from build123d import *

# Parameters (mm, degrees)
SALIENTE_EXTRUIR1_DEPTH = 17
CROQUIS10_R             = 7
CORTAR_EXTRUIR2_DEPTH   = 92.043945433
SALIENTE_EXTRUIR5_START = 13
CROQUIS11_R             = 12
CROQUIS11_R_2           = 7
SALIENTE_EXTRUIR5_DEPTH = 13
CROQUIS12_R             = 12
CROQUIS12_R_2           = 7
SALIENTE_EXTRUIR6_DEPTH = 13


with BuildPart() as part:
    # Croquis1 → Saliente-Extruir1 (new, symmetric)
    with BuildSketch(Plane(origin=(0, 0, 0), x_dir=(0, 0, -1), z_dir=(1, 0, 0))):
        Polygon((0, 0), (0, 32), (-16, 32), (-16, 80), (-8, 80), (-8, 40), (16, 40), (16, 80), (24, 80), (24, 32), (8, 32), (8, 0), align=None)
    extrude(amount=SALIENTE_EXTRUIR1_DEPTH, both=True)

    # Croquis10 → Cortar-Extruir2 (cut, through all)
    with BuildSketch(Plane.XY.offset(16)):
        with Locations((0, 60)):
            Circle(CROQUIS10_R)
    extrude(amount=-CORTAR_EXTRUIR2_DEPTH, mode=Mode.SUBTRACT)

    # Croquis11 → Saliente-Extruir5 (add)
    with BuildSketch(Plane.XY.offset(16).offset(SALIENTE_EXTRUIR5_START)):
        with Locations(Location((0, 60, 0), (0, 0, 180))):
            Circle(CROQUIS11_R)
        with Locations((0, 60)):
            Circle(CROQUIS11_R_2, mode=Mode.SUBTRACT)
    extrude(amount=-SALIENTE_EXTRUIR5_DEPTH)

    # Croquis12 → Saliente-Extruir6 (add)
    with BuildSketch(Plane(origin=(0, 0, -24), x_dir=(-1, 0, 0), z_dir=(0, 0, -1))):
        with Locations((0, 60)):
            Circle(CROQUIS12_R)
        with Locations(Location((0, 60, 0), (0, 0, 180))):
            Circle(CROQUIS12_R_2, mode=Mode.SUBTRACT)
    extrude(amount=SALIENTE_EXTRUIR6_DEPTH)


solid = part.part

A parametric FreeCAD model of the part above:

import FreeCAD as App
import Part
import Sketcher

V = App.Vector
Q = App.Units.Quantity

doc = App.newDocument("Part")
body = doc.addObject("PartDesign::Body", "Body")

sketch1 = doc.addObject("Sketcher::SketchObject", "Sketch")
body.addObject(sketch1)
sketch1.AttachmentSupport = (doc.YZ_Plane, [""])
sketch1.MapMode = "FlatFace"
sketch1.addGeometry([
    Part.LineSegment(V(32, 0, 0), V(0, 0, 0)),
    Part.LineSegment(V(0, 0, 0), V(0, -8, 0)),
    Part.LineSegment(V(0, -8, 0), V(32, -8, 0)),
    Part.LineSegment(V(32, -8, 0), V(32, -24, 0)),
    Part.LineSegment(V(32, -24, 0), V(80, -24, 0)),
    Part.LineSegment(V(80, -24, 0), V(80, -16, 0)),
    Part.LineSegment(V(80, -16, 0), V(40, -16, 0)),
    Part.LineSegment(V(40, -16, 0), V(40, 8, 0)),
    Part.LineSegment(V(40, 8, 0), V(80, 8, 0)),
    Part.LineSegment(V(80, 8, 0), V(80, 16, 0)),
    Part.LineSegment(V(80, 16, 0), V(32, 16, 0)),
    Part.LineSegment(V(32, 16, 0), V(32, 0, 0)),
], False)
sketch1.addConstraint([
    Sketcher.Constraint("Coincident", 0, 2, 1, 1),
    Sketcher.Constraint("Coincident", 1, 2, 2, 1),
    Sketcher.Constraint("Coincident", 2, 2, 3, 1),
    Sketcher.Constraint("Coincident", 3, 2, 4, 1),
    Sketcher.Constraint("Coincident", 4, 2, 5, 1),
    Sketcher.Constraint("Coincident", 5, 2, 6, 1),
    Sketcher.Constraint("Coincident", 6, 2, 7, 1),
    Sketcher.Constraint("Coincident", 7, 2, 8, 1),
    Sketcher.Constraint("Coincident", 8, 2, 9, 1),
    Sketcher.Constraint("Coincident", 9, 2, 10, 1),
    Sketcher.Constraint("Coincident", 10, 2, 11, 1),
    Sketcher.Constraint("Coincident", 11, 2, 0, 1),
    Sketcher.Constraint("Horizontal", 0),
    Sketcher.Constraint("Vertical", 1),
    Sketcher.Constraint("Horizontal", 2),
    Sketcher.Constraint("Vertical", 3),
    Sketcher.Constraint("Horizontal", 4),
    Sketcher.Constraint("Vertical", 5),
    Sketcher.Constraint("Horizontal", 6),
    Sketcher.Constraint("Vertical", 7),
    Sketcher.Constraint("Horizontal", 8),
    Sketcher.Constraint("Vertical", 9),
    Sketcher.Constraint("Horizontal", 10),
    Sketcher.Constraint("Vertical", 11),
    Sketcher.Constraint("Coincident", 0, 2, -1, 1),
    Sketcher.Constraint("Symmetric", 5, 2, 9, 2, -1),
    Sketcher.Constraint("Vertical", 3, 2, 10, 2),
    Sketcher.Constraint("Equal", 1, 5),
    Sketcher.Constraint("Equal", 5, 9),
    Sketcher.Constraint("DistanceX", 0, 2, 0, 1, Q("32 mm")),
    Sketcher.Constraint("DistanceX", 4, 1, 4, 2, Q("48 mm")),
    Sketcher.Constraint("DistanceX", 6, 2, 6, 1, Q("40 mm")),
    Sketcher.Constraint("DistanceY", 1, 2, 1, 1, Q("8 mm")),
    Sketcher.Constraint("DistanceY", 3, 2, 3, 1, Q("16 mm")),
])
pad1 = doc.addObject("PartDesign::Pad", "Pad")
body.addObject(pad1)
pad1.Profile = sketch1
pad1.Length = 34
pad1.Midplane = True

sketch2 = doc.addObject("Sketcher::SketchObject", "Sketch001")
body.addObject(sketch2)
sketch2.AttachmentSupport = (doc.XY_Plane, [""])
sketch2.MapMode = "FlatFace"
sketch2.AttachmentOffset = App.Placement(V(0, 0, 16), App.Rotation())
sketch2.addGeometry(Part.Circle(V(0, 60, 0), V(0, 0, 1), 7), False)
sketch2.addConstraint([
    Sketcher.Constraint("PointOnObject", 0, 3, -2),
    Sketcher.Constraint("Diameter", 0, Q("14 mm")),
    Sketcher.Constraint("DistanceY", -1, 1, 0, 3, Q("60 mm")),
])
pocket1 = doc.addObject("PartDesign::Pocket", "Pocket")
body.addObject(pocket1)
pocket1.Profile = sketch2
pocket1.Type = "ThroughAll"

sketch3 = doc.addObject("Sketcher::SketchObject", "Sketch002")
body.addObject(sketch3)
sketch3.AttachmentSupport = (doc.XY_Plane, [""])
sketch3.MapMode = "FlatFace"
sketch3.AttachmentOffset = App.Placement(V(0, 0, 29), App.Rotation())
sketch3.addGeometry([
    Part.Circle(V(0, 60, 0), V(0, 0, 1), 12),
    Part.Circle(V(0, 60, 0), V(0, 0, 1), 7),
], False)
sketch3.addConstraint([
    Sketcher.Constraint("Coincident", 1, 3, 0, 3),
    Sketcher.Constraint("PointOnObject", 0, 3, -2),
    Sketcher.Constraint("Diameter", 0, Q("24 mm")),
    Sketcher.Constraint("Diameter", 1, Q("14 mm")),
    Sketcher.Constraint("DistanceY", -1, 1, 0, 3, Q("60 mm")),
])
pad2 = doc.addObject("PartDesign::Pad", "Pad001")
body.addObject(pad2)
pad2.Profile = sketch3
pad2.Length = 13
pad2.Reversed = True

sketch4 = doc.addObject("Sketcher::SketchObject", "Sketch003")
body.addObject(sketch4)
sketch4.AttachmentSupport = (doc.XY_Plane, [""])
sketch4.MapMode = "FlatFace"
sketch4.AttachmentOffset = App.Placement(V(0, 0, -24), App.Rotation())
sketch4.addGeometry([
    Part.Circle(V(0, 60, 0), V(0, 0, 1), 12),
    Part.Circle(V(0, 60, 0), V(0, 0, 1), 7),
], False)
sketch4.addConstraint([
    Sketcher.Constraint("Coincident", 1, 3, 0, 3),
    Sketcher.Constraint("PointOnObject", 0, 3, -2),
    Sketcher.Constraint("Diameter", 0, Q("24 mm")),
    Sketcher.Constraint("Diameter", 1, Q("14 mm")),
    Sketcher.Constraint("DistanceY", -1, 1, 0, 3, Q("60 mm")),
])
pad3 = doc.addObject("PartDesign::Pad", "Pad002")
body.addObject(pad3)
pad3.Profile = sketch4
pad3.Length = 13
pad3.Reversed = True

doc.recompute()
